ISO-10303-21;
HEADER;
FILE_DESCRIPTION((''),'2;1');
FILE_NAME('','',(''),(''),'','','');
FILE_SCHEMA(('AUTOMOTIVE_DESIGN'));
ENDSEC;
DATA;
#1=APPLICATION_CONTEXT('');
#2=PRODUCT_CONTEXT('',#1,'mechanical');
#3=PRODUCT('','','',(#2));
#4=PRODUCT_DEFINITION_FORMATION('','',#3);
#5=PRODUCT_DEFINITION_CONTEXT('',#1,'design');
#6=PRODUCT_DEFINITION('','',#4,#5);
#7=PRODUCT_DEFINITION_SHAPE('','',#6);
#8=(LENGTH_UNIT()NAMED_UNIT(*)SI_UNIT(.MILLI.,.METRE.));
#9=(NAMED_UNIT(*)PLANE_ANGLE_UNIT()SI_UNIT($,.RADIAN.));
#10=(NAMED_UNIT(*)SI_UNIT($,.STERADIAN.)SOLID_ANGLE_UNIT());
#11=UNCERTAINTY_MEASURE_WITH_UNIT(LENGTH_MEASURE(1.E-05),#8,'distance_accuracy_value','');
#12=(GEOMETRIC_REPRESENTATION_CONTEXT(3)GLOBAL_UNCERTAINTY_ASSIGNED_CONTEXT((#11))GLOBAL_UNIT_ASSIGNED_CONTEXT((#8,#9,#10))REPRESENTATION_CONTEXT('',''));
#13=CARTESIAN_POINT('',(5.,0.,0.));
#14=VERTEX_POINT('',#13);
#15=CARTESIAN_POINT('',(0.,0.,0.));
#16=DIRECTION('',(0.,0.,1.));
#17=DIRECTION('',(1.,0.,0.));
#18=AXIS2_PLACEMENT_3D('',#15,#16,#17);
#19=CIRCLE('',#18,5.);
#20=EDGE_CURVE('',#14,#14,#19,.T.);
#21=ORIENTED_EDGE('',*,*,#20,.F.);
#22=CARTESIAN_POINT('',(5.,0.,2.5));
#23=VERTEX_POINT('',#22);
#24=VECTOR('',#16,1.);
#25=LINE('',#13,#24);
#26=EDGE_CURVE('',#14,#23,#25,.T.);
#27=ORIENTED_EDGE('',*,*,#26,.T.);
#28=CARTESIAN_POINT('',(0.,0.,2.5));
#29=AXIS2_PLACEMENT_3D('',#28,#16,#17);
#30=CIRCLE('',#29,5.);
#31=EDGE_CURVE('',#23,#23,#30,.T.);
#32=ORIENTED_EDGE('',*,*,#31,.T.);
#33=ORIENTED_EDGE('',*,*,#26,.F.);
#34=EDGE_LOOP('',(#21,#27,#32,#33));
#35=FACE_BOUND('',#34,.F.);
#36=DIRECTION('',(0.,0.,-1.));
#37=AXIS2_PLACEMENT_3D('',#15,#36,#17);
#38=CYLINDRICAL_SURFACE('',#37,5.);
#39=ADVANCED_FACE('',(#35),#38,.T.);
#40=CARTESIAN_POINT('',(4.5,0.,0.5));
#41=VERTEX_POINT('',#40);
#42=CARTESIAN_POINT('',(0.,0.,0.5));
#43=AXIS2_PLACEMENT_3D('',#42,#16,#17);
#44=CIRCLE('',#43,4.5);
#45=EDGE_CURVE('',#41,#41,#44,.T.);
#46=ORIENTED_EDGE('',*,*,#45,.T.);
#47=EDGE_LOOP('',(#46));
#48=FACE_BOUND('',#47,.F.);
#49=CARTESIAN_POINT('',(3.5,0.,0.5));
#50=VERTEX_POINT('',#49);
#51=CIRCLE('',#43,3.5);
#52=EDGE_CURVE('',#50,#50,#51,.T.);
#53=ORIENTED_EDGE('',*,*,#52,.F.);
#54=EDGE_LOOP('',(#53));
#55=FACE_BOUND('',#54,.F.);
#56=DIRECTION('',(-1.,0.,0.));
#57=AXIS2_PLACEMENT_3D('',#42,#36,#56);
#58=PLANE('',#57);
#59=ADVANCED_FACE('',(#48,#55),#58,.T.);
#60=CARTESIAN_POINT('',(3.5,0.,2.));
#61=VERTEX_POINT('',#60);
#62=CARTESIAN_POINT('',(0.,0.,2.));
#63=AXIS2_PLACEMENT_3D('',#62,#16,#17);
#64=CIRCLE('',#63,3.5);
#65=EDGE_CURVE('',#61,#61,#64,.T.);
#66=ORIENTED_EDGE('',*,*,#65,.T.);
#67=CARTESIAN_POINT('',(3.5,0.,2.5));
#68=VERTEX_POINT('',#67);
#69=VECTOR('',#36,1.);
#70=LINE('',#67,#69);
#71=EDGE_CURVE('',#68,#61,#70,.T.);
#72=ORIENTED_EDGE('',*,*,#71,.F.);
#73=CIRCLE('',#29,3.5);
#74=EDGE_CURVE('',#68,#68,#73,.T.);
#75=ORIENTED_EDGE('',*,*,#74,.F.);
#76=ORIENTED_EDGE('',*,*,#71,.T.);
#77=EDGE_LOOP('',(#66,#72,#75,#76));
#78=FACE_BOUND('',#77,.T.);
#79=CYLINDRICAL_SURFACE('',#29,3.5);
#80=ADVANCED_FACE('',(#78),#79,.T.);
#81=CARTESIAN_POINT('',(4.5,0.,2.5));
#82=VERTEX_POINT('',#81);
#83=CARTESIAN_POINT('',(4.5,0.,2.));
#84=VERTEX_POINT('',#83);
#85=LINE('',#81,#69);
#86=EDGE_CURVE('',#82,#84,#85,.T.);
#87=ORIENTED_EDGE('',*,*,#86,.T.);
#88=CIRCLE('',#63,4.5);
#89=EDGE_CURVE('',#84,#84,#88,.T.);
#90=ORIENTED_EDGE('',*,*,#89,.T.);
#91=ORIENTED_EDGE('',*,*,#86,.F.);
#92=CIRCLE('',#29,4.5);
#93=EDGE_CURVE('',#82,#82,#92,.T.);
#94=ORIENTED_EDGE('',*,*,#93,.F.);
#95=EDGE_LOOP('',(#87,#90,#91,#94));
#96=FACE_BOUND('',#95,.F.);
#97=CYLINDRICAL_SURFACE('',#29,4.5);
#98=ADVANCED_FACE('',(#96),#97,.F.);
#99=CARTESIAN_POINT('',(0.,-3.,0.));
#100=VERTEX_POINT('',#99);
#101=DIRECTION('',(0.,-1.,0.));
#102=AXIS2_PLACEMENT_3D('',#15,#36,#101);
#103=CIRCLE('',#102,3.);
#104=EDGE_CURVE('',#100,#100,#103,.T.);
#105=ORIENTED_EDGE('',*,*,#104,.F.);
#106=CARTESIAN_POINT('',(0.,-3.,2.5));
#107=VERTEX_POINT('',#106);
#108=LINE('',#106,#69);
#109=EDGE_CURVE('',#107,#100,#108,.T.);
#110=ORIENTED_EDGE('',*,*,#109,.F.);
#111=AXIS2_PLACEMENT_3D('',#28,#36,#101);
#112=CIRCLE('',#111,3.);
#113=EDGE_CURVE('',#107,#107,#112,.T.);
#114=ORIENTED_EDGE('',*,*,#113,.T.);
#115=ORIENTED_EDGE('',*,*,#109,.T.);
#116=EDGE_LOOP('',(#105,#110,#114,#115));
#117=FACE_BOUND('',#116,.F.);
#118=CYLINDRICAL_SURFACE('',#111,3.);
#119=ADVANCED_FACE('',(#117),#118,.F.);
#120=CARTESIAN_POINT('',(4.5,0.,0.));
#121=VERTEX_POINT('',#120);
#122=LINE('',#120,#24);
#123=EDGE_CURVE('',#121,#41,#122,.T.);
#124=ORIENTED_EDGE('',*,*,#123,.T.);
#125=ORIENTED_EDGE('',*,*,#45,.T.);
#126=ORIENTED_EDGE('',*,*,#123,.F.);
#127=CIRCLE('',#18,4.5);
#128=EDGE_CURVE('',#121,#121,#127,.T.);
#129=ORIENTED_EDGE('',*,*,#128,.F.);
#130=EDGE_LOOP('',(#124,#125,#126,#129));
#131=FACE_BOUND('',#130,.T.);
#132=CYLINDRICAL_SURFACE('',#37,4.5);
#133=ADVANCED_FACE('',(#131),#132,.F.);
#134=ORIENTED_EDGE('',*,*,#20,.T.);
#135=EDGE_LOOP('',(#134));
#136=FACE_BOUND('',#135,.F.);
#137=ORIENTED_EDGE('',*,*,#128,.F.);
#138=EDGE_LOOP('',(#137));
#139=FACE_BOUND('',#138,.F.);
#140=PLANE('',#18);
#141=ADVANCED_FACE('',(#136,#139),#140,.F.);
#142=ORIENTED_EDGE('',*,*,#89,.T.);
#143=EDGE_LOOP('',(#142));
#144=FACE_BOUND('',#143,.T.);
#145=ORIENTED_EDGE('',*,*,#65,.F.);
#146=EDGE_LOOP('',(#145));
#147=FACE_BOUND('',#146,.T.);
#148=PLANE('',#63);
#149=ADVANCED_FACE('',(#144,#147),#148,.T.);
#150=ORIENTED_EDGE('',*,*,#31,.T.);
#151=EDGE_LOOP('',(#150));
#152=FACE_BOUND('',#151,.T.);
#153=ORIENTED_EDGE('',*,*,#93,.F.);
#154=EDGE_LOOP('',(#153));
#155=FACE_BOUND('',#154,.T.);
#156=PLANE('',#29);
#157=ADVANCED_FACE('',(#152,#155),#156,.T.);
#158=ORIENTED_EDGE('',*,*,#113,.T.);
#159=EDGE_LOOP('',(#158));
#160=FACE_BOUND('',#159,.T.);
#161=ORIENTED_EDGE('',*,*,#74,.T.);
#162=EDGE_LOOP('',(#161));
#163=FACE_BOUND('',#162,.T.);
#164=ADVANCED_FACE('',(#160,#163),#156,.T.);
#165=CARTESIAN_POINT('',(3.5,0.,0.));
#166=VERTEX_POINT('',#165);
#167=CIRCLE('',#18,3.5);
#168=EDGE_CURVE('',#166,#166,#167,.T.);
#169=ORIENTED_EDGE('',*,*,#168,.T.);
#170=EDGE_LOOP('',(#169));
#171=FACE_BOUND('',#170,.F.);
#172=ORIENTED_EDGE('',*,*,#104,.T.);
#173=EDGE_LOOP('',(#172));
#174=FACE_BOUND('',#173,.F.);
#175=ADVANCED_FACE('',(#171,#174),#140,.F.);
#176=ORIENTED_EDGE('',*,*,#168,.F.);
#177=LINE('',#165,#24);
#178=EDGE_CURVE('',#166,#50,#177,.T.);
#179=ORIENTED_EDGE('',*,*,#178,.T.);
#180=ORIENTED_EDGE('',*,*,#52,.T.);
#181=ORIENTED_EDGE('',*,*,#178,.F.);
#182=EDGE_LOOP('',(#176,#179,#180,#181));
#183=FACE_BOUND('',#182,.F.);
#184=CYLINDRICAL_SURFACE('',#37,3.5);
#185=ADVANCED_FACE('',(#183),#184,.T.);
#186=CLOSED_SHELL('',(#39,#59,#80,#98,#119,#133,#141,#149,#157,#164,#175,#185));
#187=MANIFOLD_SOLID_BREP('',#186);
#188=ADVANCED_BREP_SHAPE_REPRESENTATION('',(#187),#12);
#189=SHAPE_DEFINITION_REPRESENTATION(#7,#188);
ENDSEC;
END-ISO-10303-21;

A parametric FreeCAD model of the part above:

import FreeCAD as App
import Part
import Sketcher

V = App.Vector
Q = App.Units.Quantity

doc = App.newDocument("Part")
body = doc.addObject("PartDesign::Body", "Body")

sketch1 = doc.addObject("Sketcher::SketchObject", "Sketch")
body.addObject(sketch1)
sketch1.AttachmentSupport = (doc.XY_Plane, [""])
sketch1.MapMode = "FlatFace"
sketch1.addGeometry(Part.Circle(V(0, 0, 0), V(0, 0, 1), 5), False)
sketch1.addConstraint(Sketcher.Constraint("Coincident", 0, 3, -1, 1))
sketch1.addConstraint(Sketcher.Constraint("Diameter", 0, Q("10 mm")))
pad1 = doc.addObject("PartDesign::Pad", "Pad")
body.addObject(pad1)
pad1.Profile = sketch1
pad1.Length = 2.5

sketch2 = doc.addObject("Sketcher::SketchObject", "Sketch001")
body.addObject(sketch2)
sketch2.AttachmentSupport = (doc.XY_Plane, [""])
sketch2.MapMode = "FlatFace"
sketch2.AttachmentOffset = App.Placement(V(0, 0, 2.5), App.Rotation())
sketch2.addGeometry(Part.Circle(V(0, 0, 0), V(0, 0, 1), 3), False)
sketch2.addConstraint(Sketcher.Constraint("Coincident", 0, 3, -1, 1))
sketch2.addConstraint(Sketcher.Constraint("Diameter", 0, Q("6 mm")))
doc.recompute()
hole = doc.addObject("PartDesign::Hole", "Hole")
body.addObject(hole)
hole.Profile = sketch2
hole.ThreadType = "None"
hole.Diameter = 6
hole.DepthType = "ThroughAll"

sketch3 = doc.addObject("Sketcher::SketchObject", "Sketch002")
body.addObject(sketch3)
sketch3.AttachmentSupport = (doc.XY_Plane, [""])
sketch3.MapMode = "FlatFace"
sketch3.AttachmentOffset = App.Placement(V(0, 0, 2.5), App.Rotation())
sketch3.addGeometry(Part.Circle(V(0, 0, 0), V(0, 0, 1), 4.5), False)
sketch3.addGeometry(Part.Circle(V(0, 0, 0), V(0, 0, 1), 3.5), False)
sketch3.addConstraint(Sketcher.Constraint("Coincident", 0, 3, -1, 1))
sketch3.addConstraint(Sketcher.Constraint("Coincident", 1, 3, -1, 1))
sketch3.addConstraint(Sketcher.Constraint("Diameter", 0, Q("9 mm")))
sketch3.addConstraint(Sketcher.Constraint("Diameter", 1, Q("7 mm")))
pocket1 = doc.addObject("PartDesign::Pocket", "Pocket")
body.addObject(pocket1)
pocket1.Profile = sketch3
pocket1.Length = 0.5
doc.recompute()

datumplane = doc.addObject("PartDesign::Plane", "DatumPlane")
body.addObject(datumplane)
datumplane.AttachmentSupport = (doc.XY_Plane, [""])
datumplane.MapMode = "FlatFace"
datumplane.AttachmentOffset = App.Placement(V(0, 0, 1.25), App.Rotation())
mirrored = doc.addObject("PartDesign::Mirrored", "Mirrored")
body.addObject(mirrored)
mirrored.Originals = [pocket1]
mirrored.MirrorPlane = (datumplane, [""])
body.Tip = mirrored

doc.recompute()
